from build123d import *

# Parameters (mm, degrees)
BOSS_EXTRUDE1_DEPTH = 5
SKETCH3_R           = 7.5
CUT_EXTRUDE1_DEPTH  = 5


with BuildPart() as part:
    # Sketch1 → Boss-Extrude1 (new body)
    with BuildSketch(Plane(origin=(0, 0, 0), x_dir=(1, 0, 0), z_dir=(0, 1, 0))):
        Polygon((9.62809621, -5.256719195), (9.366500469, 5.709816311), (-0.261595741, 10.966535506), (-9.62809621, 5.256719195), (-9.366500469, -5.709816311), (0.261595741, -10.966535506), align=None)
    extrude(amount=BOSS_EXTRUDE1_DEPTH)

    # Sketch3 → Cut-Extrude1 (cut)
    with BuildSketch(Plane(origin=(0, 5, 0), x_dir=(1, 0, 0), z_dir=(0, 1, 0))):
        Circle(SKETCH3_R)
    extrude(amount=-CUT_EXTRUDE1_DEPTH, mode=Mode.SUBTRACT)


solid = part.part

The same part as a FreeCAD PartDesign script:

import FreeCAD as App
import Part
import Sketcher
Q = App.Units.Quantity


def add_polygon(sketch, points):
    """Adds a closed chain of lines whose ends are joined by coincident constraints."""
    first, n = sketch.GeometryCount, len(points)
    for a, b in zip(points, points[1:] + points[:1]):
        sketch.addGeometry(Part.LineSegment(App.Vector(*a, 0), App.Vector(*b, 0)), False)
    for i in range(n):
        sketch.addConstraint(Sketcher.Constraint("Coincident", first + i, 2, first + (i + 1) % n, 1))

doc = App.newDocument("Part")
body = doc.addObject("PartDesign::Body", "Body")

# Sketch on XZ plane
sketch1 = body.newObject("Sketcher::SketchObject", "Sketch")
sketch1.AttachmentSupport = (doc.getObject("XZ_Plane"), [""])
sketch1.MapMode = "FlatFace"
add_polygon(sketch1, [(10, 5), (9, -6), (0, -11), (-10, -5), (-9, 6), (0, 11)])  # lines 0-5
sketch1.addConstraint(Sketcher.Constraint("Symmetric", 0, 2, 3, 2, -1, 1))
sketch1.addConstraint(Sketcher.Constraint("Symmetric", 1, 2, 4, 2, -1, 1))
sketch1.addConstraint(Sketcher.Constraint("Symmetric", 2, 2, 5, 2, -1, 1))
sketch1.addConstraint(Sketcher.Constraint("Equal", 0, 1))
sketch1.addConstraint(Sketcher.Constraint("Equal", 1, 2))
sketch1.addConstraint(Sketcher.Constraint("DistanceX", 3, 2, 0, 2, Q("18.733001 mm")))
sketch1.addConstraint(Sketcher.Constraint("DistanceX", 2, 2, 1, 2, Q("9.3665 mm")))
sketch1.addConstraint(Sketcher.Constraint("DistanceY", 2, 2, -1, 1, Q("5.256719 mm")))
sketch1.addConstraint(Sketcher.Constraint("DistanceY", 1, 2, 0, 2, Q("5.256719 mm")))
pad1 = body.newObject("PartDesign::Pad", "Pad")
pad1.Profile = sketch1
pad1.Length = 5
pad1.Reversed = True

# Sketch on XZ plane
sketch2 = body.newObject("Sketcher::SketchObject", "Sketch001")
sketch2.AttachmentSupport = (doc.getObject("XZ_Plane"), [""])
sketch2.MapMode = "FlatFace"
sketch2.AttachmentOffset = App.Placement(App.Vector(0, 0, -5), App.Rotation())
sketch2.addGeometry(Part.Circle(App.Vector(0, 0, 0), App.Vector(0, 0, 1), 8), False)
sketch2.addConstraint(Sketcher.Constraint("Coincident", 0, 3, -1, 1))
sketch2.addConstraint(Sketcher.Constraint("Diameter", 0, Q("15 mm")))
pocket1 = body.newObject("PartDesign::Pocket", "Pocket")
pocket1.Profile = sketch2
pocket1.Length = 5
pocket1.Reversed = True

doc.recompute()
